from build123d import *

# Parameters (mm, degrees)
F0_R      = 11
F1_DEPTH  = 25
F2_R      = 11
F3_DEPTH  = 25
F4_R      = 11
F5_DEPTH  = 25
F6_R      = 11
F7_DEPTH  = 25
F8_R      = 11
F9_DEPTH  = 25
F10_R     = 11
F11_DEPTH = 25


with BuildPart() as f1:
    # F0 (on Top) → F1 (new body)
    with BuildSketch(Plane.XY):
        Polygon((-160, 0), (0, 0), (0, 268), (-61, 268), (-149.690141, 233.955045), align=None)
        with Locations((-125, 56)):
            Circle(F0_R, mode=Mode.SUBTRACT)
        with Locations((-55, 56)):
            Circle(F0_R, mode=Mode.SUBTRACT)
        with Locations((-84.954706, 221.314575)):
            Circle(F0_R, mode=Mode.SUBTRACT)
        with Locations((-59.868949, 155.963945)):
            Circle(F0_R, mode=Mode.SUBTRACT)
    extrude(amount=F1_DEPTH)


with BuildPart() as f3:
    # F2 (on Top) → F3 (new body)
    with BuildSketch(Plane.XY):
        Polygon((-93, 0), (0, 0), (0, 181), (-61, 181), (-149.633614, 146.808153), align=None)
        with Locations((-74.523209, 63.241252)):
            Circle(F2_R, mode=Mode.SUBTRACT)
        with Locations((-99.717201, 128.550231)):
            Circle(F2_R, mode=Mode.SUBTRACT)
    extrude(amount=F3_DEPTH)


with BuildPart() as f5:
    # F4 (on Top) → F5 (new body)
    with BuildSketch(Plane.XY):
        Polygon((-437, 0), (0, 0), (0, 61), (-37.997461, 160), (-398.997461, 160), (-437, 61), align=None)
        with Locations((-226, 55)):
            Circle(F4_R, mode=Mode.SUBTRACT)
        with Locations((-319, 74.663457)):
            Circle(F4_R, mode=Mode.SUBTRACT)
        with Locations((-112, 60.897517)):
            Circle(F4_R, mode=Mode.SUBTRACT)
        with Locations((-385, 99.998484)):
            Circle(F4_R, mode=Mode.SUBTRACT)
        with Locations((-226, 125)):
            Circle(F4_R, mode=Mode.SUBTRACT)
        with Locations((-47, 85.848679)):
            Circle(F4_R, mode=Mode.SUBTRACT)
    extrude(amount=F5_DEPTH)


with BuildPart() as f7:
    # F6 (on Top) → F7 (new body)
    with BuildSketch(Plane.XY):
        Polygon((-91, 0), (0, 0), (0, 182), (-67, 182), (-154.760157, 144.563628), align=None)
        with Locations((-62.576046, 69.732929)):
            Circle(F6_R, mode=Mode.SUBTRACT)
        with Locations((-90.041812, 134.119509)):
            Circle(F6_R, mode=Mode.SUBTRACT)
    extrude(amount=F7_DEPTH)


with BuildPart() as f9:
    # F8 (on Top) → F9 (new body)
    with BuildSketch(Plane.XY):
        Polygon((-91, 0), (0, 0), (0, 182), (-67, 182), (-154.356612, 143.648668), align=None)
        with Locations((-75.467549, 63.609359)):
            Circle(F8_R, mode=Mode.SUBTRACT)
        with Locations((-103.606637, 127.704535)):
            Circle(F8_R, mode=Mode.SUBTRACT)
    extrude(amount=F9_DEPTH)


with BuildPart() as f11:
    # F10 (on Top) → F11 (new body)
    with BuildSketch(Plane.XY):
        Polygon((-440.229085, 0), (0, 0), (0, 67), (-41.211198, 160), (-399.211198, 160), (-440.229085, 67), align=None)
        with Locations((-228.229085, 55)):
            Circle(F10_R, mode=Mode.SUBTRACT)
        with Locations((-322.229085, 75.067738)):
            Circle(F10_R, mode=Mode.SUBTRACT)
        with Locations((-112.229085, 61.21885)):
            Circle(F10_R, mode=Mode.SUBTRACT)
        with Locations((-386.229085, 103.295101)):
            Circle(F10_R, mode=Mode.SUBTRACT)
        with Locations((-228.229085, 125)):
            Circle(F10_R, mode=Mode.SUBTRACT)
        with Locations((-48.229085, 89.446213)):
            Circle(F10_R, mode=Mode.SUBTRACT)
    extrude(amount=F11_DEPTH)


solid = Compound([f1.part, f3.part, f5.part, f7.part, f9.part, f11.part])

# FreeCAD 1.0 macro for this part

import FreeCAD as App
import Part
import Sketcher
Q = App.Units.Quantity


def add_polygon(sketch, points):
    """Adds a closed chain of lines whose ends are joined by coincident constraints."""
    first, n = sketch.GeometryCount, len(points)
    for a, b in zip(points, points[1:] + points[:1]):
        sketch.addGeometry(Part.LineSegment(App.Vector(*a, 0), App.Vector(*b, 0)), False)
    for i in range(n):
        sketch.addConstraint(Sketcher.Constraint("Coincident", first + i, 2, first + (i + 1) % n, 1))

doc = App.newDocument("Part")
body = doc.addObject("PartDesign::Body", "Body")

# Sketch on XY plane
sketch1 = body.newObject("Sketcher::SketchObject", "Sketch")
sketch1.AttachmentSupport = (doc.getObject("XY_Plane"), [""])
sketch1.MapMode = "FlatFace"
add_polygon(sketch1, [(-160, 0), (0, 0), (0, 268), (-61, 268), (-150, 234)])  # lines 0-4
sketch1.addGeometry(Part.Circle(App.Vector(-125, 56, 0), App.Vector(0, 0, 1), 11), False)  # 5
sketch1.addGeometry(Part.Circle(App.Vector(-55, 56, 0), App.Vector(0, 0, 1), 11), False)  # 6
sketch1.addGeometry(Part.Circle(App.Vector(-60, 156, 0), App.Vector(0, 0, 1), 11), False)  # 7
sketch1.addGeometry(Part.Circle(App.Vector(-85, 221, 0), App.Vector(0, 0, 1), 11), False)  # 8
sketch1.addConstraint([
    Sketcher.Constraint("Horizontal", 0),
    Sketcher.Constraint("Vertical", 1),
    Sketcher.Constraint("Horizontal", 2),
    Sketcher.Constraint("Coincident", 0, 2, -1, 1),
    Sketcher.Constraint("Equal", 5, 6),
    Sketcher.Constraint("Equal", 6, 7),
    Sketcher.Constraint("Equal", 7, 8),
    Sketcher.Constraint("Horizontal", 5, 3, 6, 3),
    Sketcher.Constraint("Diameter", 5, Q("22 mm")),
    Sketcher.Constraint("DistanceX", 0, 1, 0, 2, Q("160 mm")),
    Sketcher.Constraint("DistanceX", 2, 2, 2, 1, Q("61 mm")),
    Sketcher.Constraint("DistanceY", 1, 1, 1, 2, Q("268 mm")),
    Sketcher.Constraint("Angle", 3, Q("-159 deg")),
    Sketcher.Constraint("Distance", 3, Q("95 mm")),
    Sketcher.Constraint("DistanceX", 5, 3, -1, 1, Q("125 mm")),
    Sketcher.Constraint("DistanceY", -1, 1, 5, 3, Q("56 mm")),
    Sketcher.Constraint("DistanceX", 6, 3, -1, 1, Q("55 mm")),
    Sketcher.Constraint("DistanceY", 7, 3, 3, 2, Q("77.9911 mm")),
    Sketcher.Constraint("DistanceX", 7, 3, -1, 1, Q("59.868949 mm")),
    Sketcher.Constraint("DistanceY", 7, 3, 8, 3, Q("65.35063 mm")),
    Sketcher.Constraint("DistanceX", 8, 3, -1, 1, Q("84.954706 mm")),
])
pad1 = body.newObject("PartDesign::Pad", "Pad")
pad1.Profile = sketch1
pad1.Length = 25
body2 = doc.addObject("PartDesign::Body", "Body001")

# Sketch on XY plane
sketch2 = body2.newObject("Sketcher::SketchObject", "Sketch001")
sketch2.AttachmentSupport = (doc.getObject("XY_Plane001"), [""])
sketch2.MapMode = "FlatFace"
add_polygon(sketch2, [(-93, 0), (0, 0), (0, 181), (-61, 181), (-150, 147)])  # lines 0-4
sketch2.addGeometry(Part.Circle(App.Vector(-75, 63, 0), App.Vector(0, 0, 1), 11), False)  # 5
sketch2.addGeometry(Part.Circle(App.Vector(-100, 129, 0), App.Vector(0, 0, 1), 11), False)  # 6
sketch2.addConstraint([
    Sketcher.Constraint("Horizontal", 0),
    Sketcher.Constraint("Vertical", 1),
    Sketcher.Constraint("Horizontal", 2),
    Sketcher.Constraint("Coincident", 0, 2, -1, 1),
    Sketcher.Constraint("Equal", 5, 6),
    Sketcher.Constraint("Perpendicular", 3, 4),
    Sketcher.Constraint("Diameter", 5, Q("22 mm")),
    Sketcher.Constraint("DistanceX", 0, 1, 0, 2, Q("93 mm")),
    Sketcher.Constraint("DistanceX", 2, 2, 2, 1, Q("61 mm")),
    Sketcher.Constraint("DistanceY", 1, 1, 1, 2, Q("181 mm")),
    Sketcher.Constraint("Distance", 3, Q("95 mm")),
    Sketcher.Constraint("DistanceX", 6, 3, -1, 1, Q("99.717201 mm")),
    Sketcher.Constraint("DistanceY", 5, 3, 3, 2, Q("83.566901 mm")),
    Sketcher.Constraint("DistanceX", 5, 3, -1, 1, Q("74.523209 mm")),
    Sketcher.Constraint("DistanceY", -1, 1, 6, 3, Q("128.550231 mm")),
])
pad2 = body2.newObject("PartDesign::Pad", "Pad001")
pad2.Profile = sketch2
pad2.Length = 25
body3 = doc.addObject("PartDesign::Body", "Body002")

# Sketch on XY plane
sketch3 = body3.newObject("Sketcher::SketchObject", "Sketch002")
sketch3.AttachmentSupport = (doc.getObject("XY_Plane002"), [""])
sketch3.MapMode = "FlatFace"
add_polygon(sketch3, [(-437, 0), (0, 0), (0, 61), (-38, 160), (-399, 160), (-437, 61)])  # lines 0-5
sketch3.addGeometry(Part.Circle(App.Vector(-226, 55, 0), App.Vector(0, 0, 1), 11), False)  # 6
sketch3.addGeometry(Part.Circle(App.Vector(-319, 75, 0), App.Vector(0, 0, 1), 11), False)  # 7
sketch3.addGeometry(Part.Circle(App.Vector(-112, 61, 0), App.Vector(0, 0, 1), 11), False)  # 8
sketch3.addGeometry(Part.Circle(App.Vector(-47, 86, 0), App.Vector(0, 0, 1), 11), False)  # 9
sketch3.addGeometry(Part.Circle(App.Vector(-385, 100, 0), App.Vector(0, 0, 1), 11), False)  # 10
sketch3.addGeometry(Part.Circle(App.Vector(-226, 125, 0), App.Vector(0, 0, 1), 11), False)  # 11
sketch3.addConstraint([
    Sketcher.Constraint("Horizontal", 0),
    Sketcher.Constraint("Vertical", 1),
    Sketcher.Constraint("Horizontal", 3),
    Sketcher.Constraint("Vertical", 5),
    Sketcher.Constraint("Coincident", 0, 2, -1, 1),
    Sketcher.Constraint("Equal", 6, 7),
    Sketcher.Constraint("Equal", 7, 8),
    Sketcher.Constraint("Equal", 8, 9),
    Sketcher.Constraint("Equal", 9, 10),
    Sketcher.Constraint("Equal", 10, 11),
    Sketcher.Constraint("Horizontal", 1, 2, 4, 2),
    Sketcher.Constraint("Vertical", 6, 3, 11, 3),
    Sketcher.Constraint("Diameter", 6, Q("22 mm")),
    Sketcher.Constraint("DistanceX", 0, 1, 0, 2, Q("437 mm")),
    Sketcher.Constraint("DistanceX", 3, 2, 3, 1, Q("361 mm")),
    Sketcher.Constraint("DistanceY", 1, 1, 1, 2, Q("61 mm")),
    Sketcher.Constraint("Angle", 4, Q("-111 deg")),
    Sketcher.Constraint("DistanceX", 6, 3, -1, 1, Q("226 mm")),
    Sketcher.Constraint("DistanceY", -1, 1, 6, 3, Q("55 mm")),
    Sketcher.Constraint("DistanceX", 7, 3, -1, 1, Q("319 mm")),
    Sketcher.Constraint("DistanceX", 8, 3, -1, 1, Q("112 mm")),
    Sketcher.Constraint("DistanceX", 9, 3, -1, 1, Q("47 mm")),
    Sketcher.Constraint("DistanceX", 10, 3, -1, 1, Q("385 mm")),
    Sketcher.Constraint("DistanceY", -1, 1, 11, 3, Q("125 mm")),
    Sketcher.Constraint("DistanceY", -1, 1, 2, 2, Q("160 mm")),
    Sketcher.Constraint("DistanceY", -1, 1, 9, 3, Q("85.848679 mm")),
    Sketcher.Constraint("DistanceY", 8, 3, 7, 3, Q("13.76594 mm")),
    Sketcher.Constraint("DistanceY", -1, 1, 7, 3, Q("74.663457 mm")),
    Sketcher.Constraint("DistanceY", -1, 1, 10, 3, Q("99.998484 mm")),
])
pad3 = body3.newObject("PartDesign::Pad", "Pad002")
pad3.Profile = sketch3
pad3.Length = 25
body4 = doc.addObject("PartDesign::Body", "Body003")

# Sketch on XY plane
sketch4 = body4.newObject("Sketcher::SketchObject", "Sketch003")
sketch4.AttachmentSupport = (doc.getObject("XY_Plane003"), [""])
sketch4.MapMode = "FlatFace"
add_polygon(sketch4, [(-91, 0), (0, 0), (0, 182), (-67, 182), (-155, 145)])  # lines 0-4
sketch4.addGeometry(Part.Circle(App.Vector(-63, 70, 0), App.Vector(0, 0, 1), 11), False)  # 5
sketch4.addGeometry(Part.Circle(App.Vector(-90, 134, 0), App.Vector(0, 0, 1), 11), False)  # 6
sketch4.addConstraint([
    Sketcher.Constraint("Horizontal", 0),
    Sketcher.Constraint("Vertical", 1),
    Sketcher.Constraint("Horizontal", 2),
    Sketcher.Constraint("Coincident", 0, 2, -1, 1),
    Sketcher.Constraint("Equal", 5, 6),
    Sketcher.Constraint("Diameter", 5, Q("22 mm")),
    Sketcher.Constraint("DistanceX", 0, 1, 0, 2, Q("91 mm")),
    Sketcher.Constraint("DistanceX", 2, 2, 2, 1, Q("67 mm")),
    Sketcher.Constraint("DistanceY", 1, 1, 1, 2, Q("182 mm")),
    Sketcher.Constraint("Distance", 4, Q("158.000001 mm")),
    Sketcher.Constraint("Angle", 4, Q("-66.2 deg")),
    Sketcher.Constraint("DistanceY", 5, 3, 3, 2, Q("74.830699 mm")),
    Sketcher.Constraint("DistanceX", 6, 3, -1, 1, Q("90.041812 mm")),
    Sketcher.Constraint("DistanceY", -1, 1, 6, 3, Q("134.119509 mm")),
    Sketcher.Constraint("DistanceX", 3, 2, 5, 3, Q("92.184111 mm")),
])
pad4 = body4.newObject("PartDesign::Pad", "Pad003")
pad4.Profile = sketch4
pad4.Length = 25
body5 = doc.addObject("PartDesign::Body", "Body004")

# Sketch on XY plane
sketch5 = body5.newObject("Sketcher::SketchObject", "Sketch004")
sketch5.AttachmentSupport = (doc.getObject("XY_Plane004"), [""])
sketch5.MapMode = "FlatFace"
add_polygon(sketch5, [(-91, 0), (0, 0), (0, 182), (-67, 182), (-154, 144)])  # lines 0-4
sketch5.addGeometry(Part.Circle(App.Vector(-75, 64, 0), App.Vector(0, 0, 1), 11), False)  # 5
sketch5.addGeometry(Part.Circle(App.Vector(-104, 128, 0), App.Vector(0, 0, 1), 11), False)  # 6
sketch5.addConstraint([
    Sketcher.Constraint("Horizontal", 0),
    Sketcher.Constraint("Vertical", 1),
    Sketcher.Constraint("Horizontal", 2),
    Sketcher.Constraint("Coincident", 0, 2, -1, 1),
    Sketcher.Constraint("Equal", 5, 6),
    Sketcher.Constraint("Diameter", 5, Q("22 mm")),
    Sketcher.Constraint("DistanceX", 0, 1, 0, 2, Q("91 mm")),
    Sketcher.Constraint("DistanceX", 2, 2, 2, 1, Q("67 mm")),
    Sketcher.Constraint("DistanceY", 1, 1, 1, 2, Q("182 mm")),
    Sketcher.Constraint("Distance", 4, Q("157 mm")),
    Sketcher.Constraint("Angle", 4, Q("-66.2 deg")),
    Sketcher.Constraint("DistanceX", 5, 3, -1, 1, Q("75.467549 mm")),
    Sketcher.Constraint("DistanceY", -1, 1, 5, 3, Q("63.609359 mm")),
    Sketcher.Constraint("DistanceX", 6, 3, 5, 3, Q("28.139088 mm")),
    Sketcher.Constraint("DistanceY", -1, 1, 6, 3, Q("127.704535 mm")),
])
pad5 = body5.newObject("PartDesign::Pad", "Pad004")
pad5.Profile = sketch5
pad5.Length = 25
body6 = doc.addObject("PartDesign::Body", "Body005")

# Sketch on XY plane
sketch6 = body6.newObject("Sketcher::SketchObject", "Sketch005")
sketch6.AttachmentSupport = (doc.getObject("XY_Plane005"), [""])
sketch6.MapMode = "FlatFace"
add_polygon(sketch6, [(-440, 0), (0, 0), (0, 67), (-41, 160), (-399, 160), (-440, 67)])  # lines 0-5
sketch6.addGeometry(Part.Circle(App.Vector(-228, 55, 0), App.Vector(0, 0, 1), 11), False)  # 6
sketch6.addGeometry(Part.Circle(App.Vector(-322, 75, 0), App.Vector(0, 0, 1), 11), False)  # 7
sketch6.addGeometry(Part.Circle(App.Vector(-112, 61, 0), App.Vector(0, 0, 1), 11), False)  # 8
sketch6.addGeometry(Part.Circle(App.Vector(-48, 89, 0), App.Vector(0, 0, 1), 11), False)  # 9
sketch6.addGeometry(Part.Circle(App.Vector(-386, 103, 0), App.Vector(0, 0, 1), 11), False)  # 10
sketch6.addGeometry(Part.Circle(App.Vector(-228, 125, 0), App.Vector(0, 0, 1), 11), False)  # 11
sketch6.addConstraint([
    Sketcher.Constraint("Horizontal", 0),
    Sketcher.Constraint("Vertical", 1),
    Sketcher.Constraint("Horizontal", 3),
    Sketcher.Constraint("Vertical", 5),
    Sketcher.Constraint("Coincident", 0, 2, -1, 1),
    Sketcher.Constraint("Equal", 6, 7),
    Sketcher.Constraint("Equal", 7, 8),
    Sketcher.Constraint("Equal", 8, 9),
    Sketcher.Constraint("Equal", 9, 10),
    Sketcher.Constraint("Equal", 10, 11),
    Sketcher.Constraint("Horizontal", 1, 2, 4, 2),
    Sketcher.Constraint("Vertical", 6, 3, 11, 3),
    Sketcher.Constraint("Diameter", 6, Q("22 mm")),
    Sketcher.Constraint("DistanceX", 3, 2, 3, 1, Q("358 mm")),
    Sketcher.Constraint("DistanceY", 1, 1, 1, 2, Q("67 mm")),
    Sketcher.Constraint("DistanceY", -1, 1, 6, 3, Q("55 mm")),
    Sketcher.Constraint("DistanceY", -1, 1, 11, 3, Q("125 mm")),
    Sketcher.Constraint("DistanceY", -1, 1, 2, 2, Q("160 mm")),
    Sketcher.Constraint("Angle", 4, Q("-113.8 deg")),
    Sketcher.Constraint("DistanceX", 7, 3, 6, 3, Q("94 mm")),
    Sketcher.Constraint("DistanceX", 6, 3, 8, 3, Q("116 mm")),
    Sketcher.Constraint("DistanceX", 8, 3, 9, 3, Q("64 mm")),
    Sketcher.Constraint("DistanceX", 10, 3, 7, 3, Q("64 mm")),
    Sketcher.Constraint("DistanceX", 4, 2, 10, 3, Q("54 mm")),
    Sketcher.Constraint("DistanceY", -1, 1, 10, 3, Q("103.295101 mm")),
    Sketcher.Constraint("DistanceX", 2, 2, -1, 1, Q("41.211198 mm")),
    Sketcher.Constraint("DistanceY", -1, 1, 7, 3, Q("75.067738 mm")),
    Sketcher.Constraint("DistanceY", -1, 1, 8, 3, Q("61.21885 mm")),
    Sketcher.Constraint("DistanceY", 9, 3, 10, 3, Q("13.848888 mm")),
])
pad6 = body6.newObject("PartDesign::Pad", "Pad005")
pad6.Profile = sketch6
pad6.Length = 25

doc.recompute()
